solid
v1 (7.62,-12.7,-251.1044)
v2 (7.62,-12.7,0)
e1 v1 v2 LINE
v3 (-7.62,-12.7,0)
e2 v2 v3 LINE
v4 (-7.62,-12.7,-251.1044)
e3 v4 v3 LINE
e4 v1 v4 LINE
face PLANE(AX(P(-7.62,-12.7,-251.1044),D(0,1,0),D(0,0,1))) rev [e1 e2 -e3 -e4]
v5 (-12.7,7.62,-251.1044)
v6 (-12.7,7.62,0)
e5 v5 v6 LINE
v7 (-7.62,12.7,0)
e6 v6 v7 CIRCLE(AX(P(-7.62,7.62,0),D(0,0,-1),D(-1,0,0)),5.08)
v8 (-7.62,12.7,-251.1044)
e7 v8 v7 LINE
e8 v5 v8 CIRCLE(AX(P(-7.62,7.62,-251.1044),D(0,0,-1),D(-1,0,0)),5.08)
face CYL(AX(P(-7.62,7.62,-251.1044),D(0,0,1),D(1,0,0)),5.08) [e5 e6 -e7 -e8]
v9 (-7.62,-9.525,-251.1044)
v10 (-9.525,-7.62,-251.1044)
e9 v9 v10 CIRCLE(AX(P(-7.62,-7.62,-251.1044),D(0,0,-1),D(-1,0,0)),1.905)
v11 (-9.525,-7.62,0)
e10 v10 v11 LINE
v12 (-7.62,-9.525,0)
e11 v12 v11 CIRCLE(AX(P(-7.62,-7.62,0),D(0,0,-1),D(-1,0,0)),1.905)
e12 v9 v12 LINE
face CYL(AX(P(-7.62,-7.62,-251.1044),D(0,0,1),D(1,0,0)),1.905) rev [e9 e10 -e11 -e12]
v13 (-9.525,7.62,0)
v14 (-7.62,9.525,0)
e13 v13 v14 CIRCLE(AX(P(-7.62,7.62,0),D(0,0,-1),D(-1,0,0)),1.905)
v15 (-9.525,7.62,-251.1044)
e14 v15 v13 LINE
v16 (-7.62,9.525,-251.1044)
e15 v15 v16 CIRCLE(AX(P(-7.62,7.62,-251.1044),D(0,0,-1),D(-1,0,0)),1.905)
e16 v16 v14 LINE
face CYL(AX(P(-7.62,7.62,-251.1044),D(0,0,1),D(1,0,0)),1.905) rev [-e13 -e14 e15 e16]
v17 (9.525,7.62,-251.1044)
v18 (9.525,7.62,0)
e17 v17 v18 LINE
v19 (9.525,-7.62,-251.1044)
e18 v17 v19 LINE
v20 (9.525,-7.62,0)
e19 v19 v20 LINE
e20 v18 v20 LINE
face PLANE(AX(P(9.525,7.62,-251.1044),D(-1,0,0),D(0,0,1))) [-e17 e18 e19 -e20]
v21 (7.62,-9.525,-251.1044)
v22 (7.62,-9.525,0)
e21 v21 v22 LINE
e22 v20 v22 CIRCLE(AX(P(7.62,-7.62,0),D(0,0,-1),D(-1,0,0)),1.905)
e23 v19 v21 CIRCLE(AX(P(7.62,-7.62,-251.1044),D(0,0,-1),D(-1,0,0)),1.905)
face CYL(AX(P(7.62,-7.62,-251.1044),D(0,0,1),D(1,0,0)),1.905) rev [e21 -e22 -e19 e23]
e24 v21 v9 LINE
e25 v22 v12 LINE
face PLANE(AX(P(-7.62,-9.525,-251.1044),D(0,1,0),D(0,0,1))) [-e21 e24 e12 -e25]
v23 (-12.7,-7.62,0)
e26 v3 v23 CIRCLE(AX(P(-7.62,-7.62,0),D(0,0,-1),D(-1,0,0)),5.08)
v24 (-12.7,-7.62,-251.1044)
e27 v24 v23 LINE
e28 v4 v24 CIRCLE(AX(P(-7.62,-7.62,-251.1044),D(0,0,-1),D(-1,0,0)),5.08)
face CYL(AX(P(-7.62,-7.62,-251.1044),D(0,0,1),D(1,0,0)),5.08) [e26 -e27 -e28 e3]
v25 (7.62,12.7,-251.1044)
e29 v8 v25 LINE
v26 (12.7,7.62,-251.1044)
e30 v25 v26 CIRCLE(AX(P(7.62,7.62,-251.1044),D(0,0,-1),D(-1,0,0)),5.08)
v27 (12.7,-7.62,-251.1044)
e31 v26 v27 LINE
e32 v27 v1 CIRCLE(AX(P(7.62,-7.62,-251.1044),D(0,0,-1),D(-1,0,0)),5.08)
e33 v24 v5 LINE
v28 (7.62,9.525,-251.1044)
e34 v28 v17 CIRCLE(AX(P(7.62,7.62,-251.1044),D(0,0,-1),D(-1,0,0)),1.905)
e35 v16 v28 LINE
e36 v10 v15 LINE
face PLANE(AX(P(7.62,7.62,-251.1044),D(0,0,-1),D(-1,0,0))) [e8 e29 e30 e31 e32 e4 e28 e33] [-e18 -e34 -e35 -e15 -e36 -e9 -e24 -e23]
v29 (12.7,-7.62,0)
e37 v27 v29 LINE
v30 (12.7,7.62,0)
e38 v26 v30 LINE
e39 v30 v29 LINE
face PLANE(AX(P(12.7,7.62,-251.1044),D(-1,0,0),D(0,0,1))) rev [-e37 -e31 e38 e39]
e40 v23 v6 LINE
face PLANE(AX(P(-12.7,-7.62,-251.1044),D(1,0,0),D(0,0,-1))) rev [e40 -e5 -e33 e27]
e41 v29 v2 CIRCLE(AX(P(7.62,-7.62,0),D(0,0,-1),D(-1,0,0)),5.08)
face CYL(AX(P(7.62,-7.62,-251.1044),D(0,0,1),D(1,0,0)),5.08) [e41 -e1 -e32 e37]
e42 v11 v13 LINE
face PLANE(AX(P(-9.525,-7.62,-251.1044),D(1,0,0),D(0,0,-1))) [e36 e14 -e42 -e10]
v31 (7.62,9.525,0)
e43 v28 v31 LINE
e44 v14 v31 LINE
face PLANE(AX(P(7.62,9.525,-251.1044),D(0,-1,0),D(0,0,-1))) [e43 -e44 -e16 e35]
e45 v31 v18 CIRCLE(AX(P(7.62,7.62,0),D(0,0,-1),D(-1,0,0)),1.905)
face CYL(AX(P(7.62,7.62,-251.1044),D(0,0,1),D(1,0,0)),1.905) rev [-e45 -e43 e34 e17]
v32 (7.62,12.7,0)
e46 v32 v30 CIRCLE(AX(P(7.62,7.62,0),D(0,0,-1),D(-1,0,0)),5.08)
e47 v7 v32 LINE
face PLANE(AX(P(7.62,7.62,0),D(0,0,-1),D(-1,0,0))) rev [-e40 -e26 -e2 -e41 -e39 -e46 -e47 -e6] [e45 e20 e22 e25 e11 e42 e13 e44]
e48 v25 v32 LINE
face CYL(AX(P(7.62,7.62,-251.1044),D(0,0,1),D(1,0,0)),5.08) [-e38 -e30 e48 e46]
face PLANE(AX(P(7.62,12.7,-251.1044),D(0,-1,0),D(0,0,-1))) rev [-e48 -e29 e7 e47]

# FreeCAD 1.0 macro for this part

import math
import FreeCAD as App
import Part
import Sketcher
Q = App.Units.Quantity

doc = App.newDocument("Part")
body = doc.addObject("PartDesign::Body", "Body")

# Sketch on XY plane
sketch1 = doc.addObject("Sketcher::SketchObject", "Sketch")
body.addObject(sketch1)
sketch1.AttachmentSupport = (doc.XY_Plane, [""])
sketch1.MapMode = "FlatFace"
sketch1.addGeometry([
    Part.LineSegment(App.Vector(-12.7, -7.6, 0), App.Vector(-12.7, 7.6, 0)),  # 0
    Part.ArcOfCircle(Part.Circle(App.Vector(-7.6, 7.6, 0), App.Vector(0, 0, 1), 5.1), math.radians(90), math.radians(180)),  # 1
    Part.LineSegment(App.Vector(-7.6, 12.7, 0), App.Vector(7.6, 12.7, 0)),  # 2
    Part.ArcOfCircle(Part.Circle(App.Vector(7.6, 7.6, 0), App.Vector(0, 0, 1), 5.1), math.radians(0), math.radians(90)),  # 3
    Part.LineSegment(App.Vector(12.7, 7.6, 0), App.Vector(12.7, -7.6, 0)),  # 4
    Part.ArcOfCircle(Part.Circle(App.Vector(7.6, -7.6, 0), App.Vector(0, 0, 1), 5.1), math.radians(-90), math.radians(0)),  # 5
    Part.LineSegment(App.Vector(7.6, -12.7, 0), App.Vector(-7.6, -12.7, 0)),  # 6
    Part.ArcOfCircle(Part.Circle(App.Vector(-7.6, -7.6, 0), App.Vector(0, 0, 1), 5.1), math.radians(-180), math.radians(-90)),  # 7
    Part.LineSegment(App.Vector(-9.5, 7.6, 0), App.Vector(-9.5, -7.6, 0)),  # 8
    Part.ArcOfCircle(Part.Circle(App.Vector(-7.6, -7.6, 0), App.Vector(0, 0, 1), 1.9), math.radians(-180), math.radians(-90)),  # 9
    Part.LineSegment(App.Vector(-7.6, -9.5, 0), App.Vector(7.6, -9.5, 0)),  # 10
    Part.ArcOfCircle(Part.Circle(App.Vector(7.6, -7.6, 0), App.Vector(0, 0, 1), 1.9), math.radians(-90), math.radians(0)),  # 11
    Part.LineSegment(App.Vector(9.5, -7.6, 0), App.Vector(9.5, 7.6, 0)),  # 12
    Part.ArcOfCircle(Part.Circle(App.Vector(7.6, 7.6, 0), App.Vector(0, 0, 1), 1.9), math.radians(0), math.radians(90)),  # 13
    Part.LineSegment(App.Vector(7.6, 9.5, 0), App.Vector(-7.6, 9.5, 0)),  # 14
    Part.ArcOfCircle(Part.Circle(App.Vector(-7.6, 7.6, 0), App.Vector(0, 0, 1), 1.9), math.radians(90), math.radians(180)),  # 15
], False)
sketch1.addConstraint([
    Sketcher.Constraint("Tangent", 0, 2, 1, 2),
    Sketcher.Constraint("Tangent", 1, 1, 2, 1),
    Sketcher.Constraint("Tangent", 2, 2, 3, 2),
    Sketcher.Constraint("Tangent", 3, 1, 4, 1),
    Sketcher.Constraint("Tangent", 4, 2, 5, 2),
    Sketcher.Constraint("Tangent", 5, 1, 6, 1),
    Sketcher.Constraint("Tangent", 6, 2, 7, 2),
    Sketcher.Constraint("Tangent", 7, 1, 0, 1),
    Sketcher.Constraint("Tangent", 8, 2, 9, 1),
    Sketcher.Constraint("Tangent", 9, 2, 10, 1),
    Sketcher.Constraint("Tangent", 10, 2, 11, 1),
    Sketcher.Constraint("Tangent", 11, 2, 12, 1),
    Sketcher.Constraint("Tangent", 12, 2, 13, 1),
    Sketcher.Constraint("Tangent", 13, 2, 14, 1),
    Sketcher.Constraint("Tangent", 14, 2, 15, 1),
    Sketcher.Constraint("Tangent", 15, 2, 8, 1),
    Sketcher.Constraint("Vertical", 0),
    Sketcher.Constraint("Horizontal", 2),
    Sketcher.Constraint("Vertical", 4),
    Sketcher.Constraint("Horizontal", 6),
    Sketcher.Constraint("Vertical", 8),
    Sketcher.Constraint("Horizontal", 10),
    Sketcher.Constraint("Vertical", 12),
    Sketcher.Constraint("Horizontal", 14),
    Sketcher.Constraint("Coincident", 9, 3, 7, 3),
    Sketcher.Constraint("Coincident", 11, 3, 5, 3),
    Sketcher.Constraint("Coincident", 13, 3, 3, 3),
    Sketcher.Constraint("Equal", 1, 3),
    Sketcher.Constraint("Equal", 3, 5),
    Sketcher.Constraint("Equal", 5, 7),
    Sketcher.Constraint("Equal", 13, 15),
    Sketcher.Constraint("Symmetric", 1, 3, 5, 3, -1, 1),
    Sketcher.Constraint("Equal", 14, 0),
    Sketcher.Constraint("Radius", 1, Q("0.2 in")),
    Sketcher.Constraint("DistanceX", 2, 1, 2, 2, Q("0.6 in")),
    Sketcher.Constraint("Radius", 9, Q("0.075 in")),
])
pad1 = doc.addObject("PartDesign::Pad", "Pad")
body.addObject(pad1)
pad1.Profile = sketch1
pad1.Length = Q("9.886 in")
pad1.Reversed = True

doc.recompute()
